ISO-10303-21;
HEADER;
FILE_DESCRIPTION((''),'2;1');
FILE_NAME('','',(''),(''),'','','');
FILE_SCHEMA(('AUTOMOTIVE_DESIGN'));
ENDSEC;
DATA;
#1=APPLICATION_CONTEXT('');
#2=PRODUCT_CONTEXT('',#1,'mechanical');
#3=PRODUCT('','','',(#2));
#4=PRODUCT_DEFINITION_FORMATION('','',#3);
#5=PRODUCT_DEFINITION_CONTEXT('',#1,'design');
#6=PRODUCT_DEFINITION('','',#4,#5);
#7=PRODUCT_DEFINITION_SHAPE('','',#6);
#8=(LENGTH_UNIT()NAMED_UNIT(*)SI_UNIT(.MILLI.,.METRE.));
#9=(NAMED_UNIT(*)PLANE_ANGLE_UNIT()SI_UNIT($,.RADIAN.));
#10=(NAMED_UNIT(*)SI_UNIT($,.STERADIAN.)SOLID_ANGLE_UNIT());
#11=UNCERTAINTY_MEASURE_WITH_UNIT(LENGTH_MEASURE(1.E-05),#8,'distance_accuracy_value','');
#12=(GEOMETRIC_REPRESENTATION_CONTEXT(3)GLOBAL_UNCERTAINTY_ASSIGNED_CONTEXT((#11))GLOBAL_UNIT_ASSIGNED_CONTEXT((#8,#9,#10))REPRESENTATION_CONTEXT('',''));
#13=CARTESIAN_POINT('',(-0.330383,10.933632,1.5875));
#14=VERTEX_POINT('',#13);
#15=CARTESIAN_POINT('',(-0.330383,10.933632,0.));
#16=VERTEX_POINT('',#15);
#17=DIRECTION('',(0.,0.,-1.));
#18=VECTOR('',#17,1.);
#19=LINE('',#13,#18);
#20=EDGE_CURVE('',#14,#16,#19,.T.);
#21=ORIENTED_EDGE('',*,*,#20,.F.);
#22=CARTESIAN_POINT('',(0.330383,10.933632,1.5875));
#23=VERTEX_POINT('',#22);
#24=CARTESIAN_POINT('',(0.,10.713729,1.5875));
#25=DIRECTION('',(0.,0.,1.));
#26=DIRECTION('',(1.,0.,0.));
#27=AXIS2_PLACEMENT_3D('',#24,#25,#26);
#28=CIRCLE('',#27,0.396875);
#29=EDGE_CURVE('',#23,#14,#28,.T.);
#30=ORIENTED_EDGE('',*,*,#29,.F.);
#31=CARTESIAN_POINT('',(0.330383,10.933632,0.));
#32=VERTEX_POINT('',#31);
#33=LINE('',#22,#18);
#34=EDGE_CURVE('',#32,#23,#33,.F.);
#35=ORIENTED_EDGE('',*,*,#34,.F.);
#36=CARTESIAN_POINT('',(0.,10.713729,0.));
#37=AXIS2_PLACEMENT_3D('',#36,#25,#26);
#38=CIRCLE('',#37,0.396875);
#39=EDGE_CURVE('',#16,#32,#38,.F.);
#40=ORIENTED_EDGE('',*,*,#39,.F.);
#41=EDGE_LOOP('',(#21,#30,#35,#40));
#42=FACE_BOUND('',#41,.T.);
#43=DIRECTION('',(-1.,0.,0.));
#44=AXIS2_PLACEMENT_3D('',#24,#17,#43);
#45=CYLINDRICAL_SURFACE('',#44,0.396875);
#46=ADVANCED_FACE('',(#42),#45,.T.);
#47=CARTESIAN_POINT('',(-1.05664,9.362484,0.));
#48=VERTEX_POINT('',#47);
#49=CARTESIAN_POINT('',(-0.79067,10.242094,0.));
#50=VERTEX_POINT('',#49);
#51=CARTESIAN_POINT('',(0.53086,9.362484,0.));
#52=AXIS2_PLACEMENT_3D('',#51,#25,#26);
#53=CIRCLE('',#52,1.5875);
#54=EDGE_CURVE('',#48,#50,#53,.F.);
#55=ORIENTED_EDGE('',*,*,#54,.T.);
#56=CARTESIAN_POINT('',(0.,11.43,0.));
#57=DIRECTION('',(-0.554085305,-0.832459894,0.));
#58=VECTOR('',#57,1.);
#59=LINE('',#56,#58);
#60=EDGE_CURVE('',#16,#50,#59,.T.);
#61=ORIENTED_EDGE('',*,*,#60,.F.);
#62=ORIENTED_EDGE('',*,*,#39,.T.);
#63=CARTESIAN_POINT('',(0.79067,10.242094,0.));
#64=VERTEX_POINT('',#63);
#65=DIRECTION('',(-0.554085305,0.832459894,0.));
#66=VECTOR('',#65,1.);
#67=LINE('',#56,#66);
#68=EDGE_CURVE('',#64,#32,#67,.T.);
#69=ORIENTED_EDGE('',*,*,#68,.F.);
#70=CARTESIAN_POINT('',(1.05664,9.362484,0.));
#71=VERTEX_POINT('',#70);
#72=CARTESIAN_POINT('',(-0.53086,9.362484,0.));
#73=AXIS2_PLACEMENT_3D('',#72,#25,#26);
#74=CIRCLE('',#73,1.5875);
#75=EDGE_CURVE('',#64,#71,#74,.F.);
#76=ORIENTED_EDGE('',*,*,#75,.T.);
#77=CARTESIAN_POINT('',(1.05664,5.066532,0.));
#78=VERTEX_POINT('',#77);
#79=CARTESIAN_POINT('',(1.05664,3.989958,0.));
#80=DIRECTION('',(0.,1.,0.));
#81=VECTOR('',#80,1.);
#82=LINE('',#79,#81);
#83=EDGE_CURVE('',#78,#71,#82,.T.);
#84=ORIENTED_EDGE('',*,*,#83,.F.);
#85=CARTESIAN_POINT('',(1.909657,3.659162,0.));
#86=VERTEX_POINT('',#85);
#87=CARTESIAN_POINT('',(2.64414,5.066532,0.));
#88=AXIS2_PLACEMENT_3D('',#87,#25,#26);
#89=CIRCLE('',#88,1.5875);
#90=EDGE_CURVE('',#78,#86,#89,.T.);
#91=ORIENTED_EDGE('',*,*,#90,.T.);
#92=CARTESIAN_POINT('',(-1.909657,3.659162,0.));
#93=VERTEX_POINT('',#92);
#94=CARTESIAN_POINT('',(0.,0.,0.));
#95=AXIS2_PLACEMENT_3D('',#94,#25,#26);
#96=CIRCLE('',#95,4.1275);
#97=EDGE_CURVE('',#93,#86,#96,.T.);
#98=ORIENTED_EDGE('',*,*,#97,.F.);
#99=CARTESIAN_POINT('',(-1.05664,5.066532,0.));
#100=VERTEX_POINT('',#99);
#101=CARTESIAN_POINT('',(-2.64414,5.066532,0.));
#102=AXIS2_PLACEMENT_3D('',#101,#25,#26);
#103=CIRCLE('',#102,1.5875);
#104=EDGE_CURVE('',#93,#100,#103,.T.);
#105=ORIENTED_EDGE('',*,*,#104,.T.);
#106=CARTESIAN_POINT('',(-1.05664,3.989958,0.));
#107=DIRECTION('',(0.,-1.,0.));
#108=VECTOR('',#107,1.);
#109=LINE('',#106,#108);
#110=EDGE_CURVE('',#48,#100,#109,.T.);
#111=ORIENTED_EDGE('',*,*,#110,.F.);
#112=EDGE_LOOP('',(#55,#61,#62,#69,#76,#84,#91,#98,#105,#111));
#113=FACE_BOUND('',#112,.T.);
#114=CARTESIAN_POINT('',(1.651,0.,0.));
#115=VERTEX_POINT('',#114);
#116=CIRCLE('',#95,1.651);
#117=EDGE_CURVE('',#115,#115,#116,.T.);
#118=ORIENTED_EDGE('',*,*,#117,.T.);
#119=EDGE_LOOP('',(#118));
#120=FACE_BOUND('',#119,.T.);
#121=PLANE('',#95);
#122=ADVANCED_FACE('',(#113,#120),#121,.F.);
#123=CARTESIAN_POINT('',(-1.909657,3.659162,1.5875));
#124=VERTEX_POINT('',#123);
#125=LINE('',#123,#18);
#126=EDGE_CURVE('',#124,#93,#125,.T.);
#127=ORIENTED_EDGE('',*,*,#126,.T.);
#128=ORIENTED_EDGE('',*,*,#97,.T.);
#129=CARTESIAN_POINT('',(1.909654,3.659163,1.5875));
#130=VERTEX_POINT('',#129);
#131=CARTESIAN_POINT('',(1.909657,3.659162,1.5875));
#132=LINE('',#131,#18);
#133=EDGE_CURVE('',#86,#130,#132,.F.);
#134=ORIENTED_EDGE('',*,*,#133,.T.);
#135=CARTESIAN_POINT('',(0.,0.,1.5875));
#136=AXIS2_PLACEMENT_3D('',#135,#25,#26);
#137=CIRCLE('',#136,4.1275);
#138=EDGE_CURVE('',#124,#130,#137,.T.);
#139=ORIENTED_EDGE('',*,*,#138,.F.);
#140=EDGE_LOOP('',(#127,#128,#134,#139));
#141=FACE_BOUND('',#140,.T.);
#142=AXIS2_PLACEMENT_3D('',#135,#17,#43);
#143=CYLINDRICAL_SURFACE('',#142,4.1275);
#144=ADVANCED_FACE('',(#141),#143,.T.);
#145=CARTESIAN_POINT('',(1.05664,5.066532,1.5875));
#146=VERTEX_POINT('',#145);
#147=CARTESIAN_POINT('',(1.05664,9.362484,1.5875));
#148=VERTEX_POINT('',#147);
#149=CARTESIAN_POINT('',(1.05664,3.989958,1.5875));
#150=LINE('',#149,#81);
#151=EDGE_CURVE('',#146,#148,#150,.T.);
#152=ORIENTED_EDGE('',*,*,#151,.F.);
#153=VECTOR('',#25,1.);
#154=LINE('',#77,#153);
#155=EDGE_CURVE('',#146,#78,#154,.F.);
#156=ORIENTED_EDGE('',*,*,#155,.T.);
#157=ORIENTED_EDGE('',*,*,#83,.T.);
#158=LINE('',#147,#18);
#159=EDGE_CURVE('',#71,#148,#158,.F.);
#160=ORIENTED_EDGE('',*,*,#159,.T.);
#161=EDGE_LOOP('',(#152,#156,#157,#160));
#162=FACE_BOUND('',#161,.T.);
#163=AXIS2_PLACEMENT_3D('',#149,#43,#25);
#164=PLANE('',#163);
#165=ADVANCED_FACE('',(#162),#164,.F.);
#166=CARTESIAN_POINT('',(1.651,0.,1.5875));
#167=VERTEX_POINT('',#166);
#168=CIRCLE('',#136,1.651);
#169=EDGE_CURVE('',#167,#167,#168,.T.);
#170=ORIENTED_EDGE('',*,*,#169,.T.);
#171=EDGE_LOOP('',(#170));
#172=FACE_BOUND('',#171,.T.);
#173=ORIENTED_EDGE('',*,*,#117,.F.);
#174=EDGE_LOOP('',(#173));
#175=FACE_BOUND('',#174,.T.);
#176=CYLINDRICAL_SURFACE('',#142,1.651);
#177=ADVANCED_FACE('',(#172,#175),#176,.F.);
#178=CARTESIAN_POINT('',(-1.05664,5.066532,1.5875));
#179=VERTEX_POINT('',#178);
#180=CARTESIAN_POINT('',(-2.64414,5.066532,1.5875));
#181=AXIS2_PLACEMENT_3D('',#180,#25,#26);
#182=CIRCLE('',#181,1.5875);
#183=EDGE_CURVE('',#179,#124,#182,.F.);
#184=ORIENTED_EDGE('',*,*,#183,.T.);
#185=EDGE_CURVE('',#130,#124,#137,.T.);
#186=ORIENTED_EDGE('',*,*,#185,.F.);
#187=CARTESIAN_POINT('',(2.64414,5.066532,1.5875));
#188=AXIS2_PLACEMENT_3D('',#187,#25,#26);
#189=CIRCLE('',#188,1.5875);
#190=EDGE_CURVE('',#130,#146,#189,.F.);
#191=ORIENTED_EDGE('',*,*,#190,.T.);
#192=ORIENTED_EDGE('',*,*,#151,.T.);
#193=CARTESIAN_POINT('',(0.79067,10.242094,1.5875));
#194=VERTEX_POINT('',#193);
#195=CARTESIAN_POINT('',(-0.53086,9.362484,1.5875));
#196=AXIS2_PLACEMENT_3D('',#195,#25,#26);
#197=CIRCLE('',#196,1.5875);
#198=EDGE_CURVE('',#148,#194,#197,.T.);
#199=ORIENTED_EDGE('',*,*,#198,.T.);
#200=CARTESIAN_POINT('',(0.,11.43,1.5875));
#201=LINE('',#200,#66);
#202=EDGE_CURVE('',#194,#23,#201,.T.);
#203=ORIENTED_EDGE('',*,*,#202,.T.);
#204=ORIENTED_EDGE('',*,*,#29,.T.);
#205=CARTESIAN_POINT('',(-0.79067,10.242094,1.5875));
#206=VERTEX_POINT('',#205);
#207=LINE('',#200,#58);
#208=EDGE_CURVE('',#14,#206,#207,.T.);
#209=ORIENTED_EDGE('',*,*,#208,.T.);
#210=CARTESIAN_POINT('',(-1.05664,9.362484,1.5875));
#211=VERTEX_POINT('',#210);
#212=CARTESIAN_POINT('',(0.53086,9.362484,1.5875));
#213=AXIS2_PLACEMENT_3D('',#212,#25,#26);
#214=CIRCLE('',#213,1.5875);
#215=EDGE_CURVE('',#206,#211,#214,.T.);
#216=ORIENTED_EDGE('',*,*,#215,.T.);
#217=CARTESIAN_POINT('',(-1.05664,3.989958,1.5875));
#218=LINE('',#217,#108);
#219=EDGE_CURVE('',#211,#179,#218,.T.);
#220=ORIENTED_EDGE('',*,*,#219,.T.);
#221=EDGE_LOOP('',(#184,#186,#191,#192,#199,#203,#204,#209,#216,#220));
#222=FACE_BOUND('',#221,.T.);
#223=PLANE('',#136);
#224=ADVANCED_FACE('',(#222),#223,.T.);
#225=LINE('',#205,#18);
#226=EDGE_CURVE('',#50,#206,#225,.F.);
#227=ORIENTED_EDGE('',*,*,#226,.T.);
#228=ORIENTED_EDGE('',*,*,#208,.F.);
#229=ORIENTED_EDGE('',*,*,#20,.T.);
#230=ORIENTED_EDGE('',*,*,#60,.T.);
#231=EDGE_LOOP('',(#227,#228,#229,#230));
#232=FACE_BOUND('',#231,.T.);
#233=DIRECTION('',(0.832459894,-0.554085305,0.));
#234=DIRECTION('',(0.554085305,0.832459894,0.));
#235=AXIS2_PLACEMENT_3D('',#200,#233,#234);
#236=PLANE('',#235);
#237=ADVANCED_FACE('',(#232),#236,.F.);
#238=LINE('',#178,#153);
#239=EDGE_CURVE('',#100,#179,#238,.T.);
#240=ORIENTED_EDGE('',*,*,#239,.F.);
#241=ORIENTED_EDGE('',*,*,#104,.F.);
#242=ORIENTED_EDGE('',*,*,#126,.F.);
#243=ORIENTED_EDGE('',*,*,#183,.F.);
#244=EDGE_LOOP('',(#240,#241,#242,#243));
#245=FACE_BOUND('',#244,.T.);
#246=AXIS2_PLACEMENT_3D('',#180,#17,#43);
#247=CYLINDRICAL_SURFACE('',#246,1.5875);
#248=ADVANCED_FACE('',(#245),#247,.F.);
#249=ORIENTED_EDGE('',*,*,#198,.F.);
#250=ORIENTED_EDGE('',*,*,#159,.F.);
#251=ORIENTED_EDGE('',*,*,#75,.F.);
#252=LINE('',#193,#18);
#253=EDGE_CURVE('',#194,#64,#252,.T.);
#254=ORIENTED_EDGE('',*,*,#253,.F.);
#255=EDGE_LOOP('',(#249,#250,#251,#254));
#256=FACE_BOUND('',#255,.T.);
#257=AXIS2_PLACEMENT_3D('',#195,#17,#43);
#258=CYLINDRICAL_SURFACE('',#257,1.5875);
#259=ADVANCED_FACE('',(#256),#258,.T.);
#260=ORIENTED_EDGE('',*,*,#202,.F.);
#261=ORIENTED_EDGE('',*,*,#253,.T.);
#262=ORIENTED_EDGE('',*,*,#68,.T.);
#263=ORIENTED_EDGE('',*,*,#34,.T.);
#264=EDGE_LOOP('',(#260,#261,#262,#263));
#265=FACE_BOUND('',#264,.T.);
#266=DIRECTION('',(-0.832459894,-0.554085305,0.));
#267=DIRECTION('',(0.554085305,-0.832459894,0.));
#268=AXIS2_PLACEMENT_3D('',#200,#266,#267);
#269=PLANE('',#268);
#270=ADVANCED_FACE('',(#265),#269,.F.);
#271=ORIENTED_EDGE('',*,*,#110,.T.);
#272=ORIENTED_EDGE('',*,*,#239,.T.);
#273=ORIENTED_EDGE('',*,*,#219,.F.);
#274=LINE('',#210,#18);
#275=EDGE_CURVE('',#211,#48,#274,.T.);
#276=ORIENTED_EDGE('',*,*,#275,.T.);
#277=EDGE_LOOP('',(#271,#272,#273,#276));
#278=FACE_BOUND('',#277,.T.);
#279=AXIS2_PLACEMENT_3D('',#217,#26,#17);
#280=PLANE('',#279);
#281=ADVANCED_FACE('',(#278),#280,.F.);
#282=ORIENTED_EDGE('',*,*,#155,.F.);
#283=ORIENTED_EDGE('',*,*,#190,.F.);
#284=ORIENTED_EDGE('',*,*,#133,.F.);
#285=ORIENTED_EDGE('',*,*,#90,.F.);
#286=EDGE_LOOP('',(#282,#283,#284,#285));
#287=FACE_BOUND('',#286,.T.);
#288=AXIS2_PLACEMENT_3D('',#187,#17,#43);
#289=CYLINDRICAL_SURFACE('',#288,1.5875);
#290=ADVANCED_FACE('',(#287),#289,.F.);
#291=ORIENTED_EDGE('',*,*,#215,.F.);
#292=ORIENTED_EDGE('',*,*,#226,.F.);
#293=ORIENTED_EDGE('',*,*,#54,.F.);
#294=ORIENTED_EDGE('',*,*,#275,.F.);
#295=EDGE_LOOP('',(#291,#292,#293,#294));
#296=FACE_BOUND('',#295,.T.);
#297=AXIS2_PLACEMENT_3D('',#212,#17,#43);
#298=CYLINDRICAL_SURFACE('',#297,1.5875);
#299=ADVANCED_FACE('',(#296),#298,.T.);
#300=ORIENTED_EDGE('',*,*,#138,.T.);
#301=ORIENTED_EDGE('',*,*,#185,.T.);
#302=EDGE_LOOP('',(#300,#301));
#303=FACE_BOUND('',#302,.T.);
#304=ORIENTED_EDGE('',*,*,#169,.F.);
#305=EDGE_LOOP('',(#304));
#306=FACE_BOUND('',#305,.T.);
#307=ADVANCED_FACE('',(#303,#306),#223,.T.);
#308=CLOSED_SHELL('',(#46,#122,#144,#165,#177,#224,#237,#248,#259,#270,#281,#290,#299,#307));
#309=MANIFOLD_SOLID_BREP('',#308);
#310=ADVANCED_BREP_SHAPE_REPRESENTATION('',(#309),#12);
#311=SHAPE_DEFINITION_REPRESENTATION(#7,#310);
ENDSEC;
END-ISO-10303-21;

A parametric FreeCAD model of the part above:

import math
import FreeCAD as App
import Part
import Sketcher

V = App.Vector
Q = App.Units.Quantity


def edges_at(feature, points):
    """Names of the edges that pass closest to the given points."""
    edges = feature.Shape.Edges
    near = lambda p: min(range(len(edges)), key=lambda i: edges[i].distToShape(Part.Vertex(*p))[0])
    return sorted({f"Edge{near(p) + 1}" for p in points})

doc = App.newDocument("Part")
body = doc.addObject("PartDesign::Body", "Body")

sketch1 = body.newObject("Sketcher::SketchObject", "Sketch")
sketch1.AttachmentSupport = (doc.getObject("XY_Plane"), [""])
sketch1.MapMode = "FlatFace"
sketch1.addGeometry([
    Part.LineSegment(V(1.1, 4, 0), V(1.1, 9.8, 0)),
    Part.LineSegment(V(1.1, 9.8, 0), V(0, 11.4, 0)),
    Part.LineSegment(V(0, 11.4, 0), V(-1.1, 9.8, 0)),
    Part.LineSegment(V(-1.1, 9.8, 0), V(-1.1, 4, 0)),
    Part.ArcOfCircle(Part.Circle(V(0, 0, 0), V(0, 0, 1), 4.1), math.radians(105), math.radians(435)),
    Part.Circle(V(0, 0, 0), V(0, 0, 1), 1.7),
], False)
sketch1.addConstraint([
    Sketcher.Constraint("Coincident", 0, 2, 1, 1),
    Sketcher.Constraint("Coincident", 1, 2, 2, 1),
    Sketcher.Constraint("Coincident", 2, 2, 3, 1),
    Sketcher.Constraint("Coincident", 3, 2, 4, 1),
    Sketcher.Constraint("Coincident", 4, 2, 0, 1),
    Sketcher.Constraint("Vertical", 0),
    Sketcher.Constraint("Vertical", 3),
    Sketcher.Constraint("Coincident", 4, 3, -1, 1),
    Sketcher.Constraint("Coincident", 5, 3, -1, 1),
    Sketcher.Constraint("Symmetric", 0, 2, 2, 2, -2),
    Sketcher.Constraint("PointOnObject", 1, 2, -2),
    Sketcher.Constraint("Diameter", 5, Q("0.13 in")),
    Sketcher.Constraint("Radius", 4, Q("0.1625 in")),
    Sketcher.Constraint("DistanceY", -1, 1, 1, 2, Q("0.45 in")),
    Sketcher.Constraint("DistanceY", 0, 2, 1, 2, Q("0.0625 in")),
    Sketcher.Constraint("DistanceX", -1, 1, 0, 2, Q("0.0416 in")),
])
pad1 = body.newObject("PartDesign::Pad", "Pad")
pad1.Profile = sketch1
pad1.Length = Q("0.0625 in")
doc.recompute()

fillet = body.newObject("PartDesign::Fillet", "Fillet")
fillet.Base = (pad1, edges_at(pad1, [(1.057, 9.842, 0.794), (-1.057, 9.842, 0.794)]))
fillet.Radius = Q("0.0625 in")
doc.recompute()

fillet2 = body.newObject("PartDesign::Fillet", "Fillet001")
fillet2.Base = (fillet, edges_at(fillet, [(0, 11.43, 0.794)]))
fillet2.Radius = Q("0.015625 in")
doc.recompute()

fillet3 = body.newObject("PartDesign::Fillet", "Fillet002")
fillet3.Base = (fillet2, edges_at(fillet2, [(1.057, 3.99, 0.794), (-1.057, 3.99, 0.794)]))
fillet3.Radius = Q("0.0625 in")

doc.recompute()
